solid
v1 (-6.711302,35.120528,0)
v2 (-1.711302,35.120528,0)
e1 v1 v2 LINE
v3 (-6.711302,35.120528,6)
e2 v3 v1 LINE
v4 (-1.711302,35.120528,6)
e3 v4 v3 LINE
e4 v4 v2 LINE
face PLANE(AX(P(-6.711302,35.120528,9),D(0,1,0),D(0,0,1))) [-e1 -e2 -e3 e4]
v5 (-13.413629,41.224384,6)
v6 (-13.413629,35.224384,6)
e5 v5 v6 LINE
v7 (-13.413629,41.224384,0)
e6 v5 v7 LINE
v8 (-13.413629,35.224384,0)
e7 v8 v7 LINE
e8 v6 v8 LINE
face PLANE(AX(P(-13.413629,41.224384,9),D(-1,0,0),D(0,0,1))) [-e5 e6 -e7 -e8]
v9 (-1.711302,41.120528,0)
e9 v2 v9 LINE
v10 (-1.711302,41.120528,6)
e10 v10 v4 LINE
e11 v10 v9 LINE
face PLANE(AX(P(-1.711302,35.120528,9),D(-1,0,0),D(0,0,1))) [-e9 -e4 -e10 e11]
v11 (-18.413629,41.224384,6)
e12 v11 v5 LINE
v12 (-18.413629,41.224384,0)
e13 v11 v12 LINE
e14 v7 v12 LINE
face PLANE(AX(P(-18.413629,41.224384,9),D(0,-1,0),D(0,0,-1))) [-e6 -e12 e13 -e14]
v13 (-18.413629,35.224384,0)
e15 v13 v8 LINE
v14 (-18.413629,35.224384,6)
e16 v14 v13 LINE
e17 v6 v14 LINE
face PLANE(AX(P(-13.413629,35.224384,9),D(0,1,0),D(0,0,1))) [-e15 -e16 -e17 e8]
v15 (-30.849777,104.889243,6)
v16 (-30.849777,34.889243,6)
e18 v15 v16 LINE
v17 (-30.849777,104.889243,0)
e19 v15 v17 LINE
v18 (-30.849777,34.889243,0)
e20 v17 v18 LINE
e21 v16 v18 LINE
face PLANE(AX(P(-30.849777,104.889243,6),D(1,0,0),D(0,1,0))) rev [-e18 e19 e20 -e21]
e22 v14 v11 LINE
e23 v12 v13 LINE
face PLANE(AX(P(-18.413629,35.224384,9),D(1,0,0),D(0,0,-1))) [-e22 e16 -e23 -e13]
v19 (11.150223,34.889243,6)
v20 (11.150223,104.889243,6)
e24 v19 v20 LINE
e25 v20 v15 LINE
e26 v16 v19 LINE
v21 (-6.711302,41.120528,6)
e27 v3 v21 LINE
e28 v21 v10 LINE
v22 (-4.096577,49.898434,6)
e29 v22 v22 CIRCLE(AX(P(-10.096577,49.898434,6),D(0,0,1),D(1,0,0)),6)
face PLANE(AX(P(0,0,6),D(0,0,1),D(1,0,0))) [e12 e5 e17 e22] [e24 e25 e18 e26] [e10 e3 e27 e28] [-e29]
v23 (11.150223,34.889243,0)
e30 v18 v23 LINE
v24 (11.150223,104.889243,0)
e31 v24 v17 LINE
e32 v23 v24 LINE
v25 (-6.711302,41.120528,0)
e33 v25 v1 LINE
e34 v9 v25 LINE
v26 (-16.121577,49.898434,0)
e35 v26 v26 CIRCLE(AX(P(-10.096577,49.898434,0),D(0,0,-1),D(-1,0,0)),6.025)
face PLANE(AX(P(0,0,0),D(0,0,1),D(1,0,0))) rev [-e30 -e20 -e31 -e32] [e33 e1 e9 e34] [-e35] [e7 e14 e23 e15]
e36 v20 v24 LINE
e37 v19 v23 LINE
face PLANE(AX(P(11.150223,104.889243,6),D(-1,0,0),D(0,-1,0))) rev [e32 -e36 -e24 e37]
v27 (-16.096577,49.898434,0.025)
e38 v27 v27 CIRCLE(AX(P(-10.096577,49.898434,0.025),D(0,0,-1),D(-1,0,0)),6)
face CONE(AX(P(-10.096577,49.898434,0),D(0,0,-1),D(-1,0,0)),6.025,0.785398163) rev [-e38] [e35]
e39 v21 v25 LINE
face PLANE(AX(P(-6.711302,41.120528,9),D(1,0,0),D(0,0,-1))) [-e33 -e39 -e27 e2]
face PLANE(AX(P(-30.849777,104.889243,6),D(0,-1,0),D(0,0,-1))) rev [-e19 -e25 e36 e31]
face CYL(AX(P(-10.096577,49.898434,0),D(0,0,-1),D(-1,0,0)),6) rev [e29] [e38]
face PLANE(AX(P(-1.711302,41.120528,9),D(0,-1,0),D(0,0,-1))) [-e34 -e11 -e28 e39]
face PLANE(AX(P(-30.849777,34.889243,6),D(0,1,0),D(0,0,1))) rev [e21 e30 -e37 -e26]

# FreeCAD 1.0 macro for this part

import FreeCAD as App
import Part
import Sketcher
from FreeCAD import Vector
Q = App.Units.Quantity

doc = App.newDocument("Part")
body = doc.addObject("PartDesign::Body", "Body")

# Sketch on XY plane
sketch1 = body.newObject("Sketcher::SketchObject", "Sketch")
sketch1.AttachmentSupport = (doc.getObject("XY_Plane"), [""])
sketch1.MapMode = "FlatFace"
sketch1.addGeometry([
    Part.LineSegment(Vector(-31, 105, 0), Vector(-31, 35, 0)),
    Part.LineSegment(Vector(-31, 35, 0), Vector(11, 35, 0)),
    Part.LineSegment(Vector(11, 35, 0), Vector(11, 105, 0)),
    Part.LineSegment(Vector(11, 105, 0), Vector(-31, 105, 0)),
], False)
sketch1.addConstraint([
    Sketcher.Constraint("Coincident", 0, 2, 1, 1),
    Sketcher.Constraint("Coincident", 1, 2, 2, 1),
    Sketcher.Constraint("Coincident", 2, 2, 3, 1),
    Sketcher.Constraint("Coincident", 3, 2, 0, 1),
    Sketcher.Constraint("Vertical", 0),
    Sketcher.Constraint("Horizontal", 1),
    Sketcher.Constraint("Vertical", 2),
    Sketcher.Constraint("Horizontal", 3),
    Sketcher.Constraint("DistanceX", 1, 1, 1, 2, Q("42 mm")),
    Sketcher.Constraint("DistanceY", 0, 2, 0, 1, Q("70 mm")),
    Sketcher.Constraint("DistanceX", 0, 2, -1, 1, Q("30.849777 mm")),
    Sketcher.Constraint("DistanceY", -1, 1, 0, 2, Q("34.889243 mm")),
])
pad1 = body.newObject("PartDesign::Pad", "Pad")
pad1.Profile = sketch1
pad1.Length = 6

# Sketch on XY plane
sketch2 = body.newObject("Sketcher::SketchObject", "Sketch001")
sketch2.AttachmentSupport = (doc.getObject("XY_Plane"), [""])
sketch2.MapMode = "FlatFace"
sketch2.addGeometry([
    Part.LineSegment(Vector(-7, 41, 0), Vector(-7, 35, 0)),  # 0
    Part.LineSegment(Vector(-7, 35, 0), Vector(-2, 35, 0)),  # 1
    Part.LineSegment(Vector(-2, 35, 0), Vector(-2, 41, 0)),  # 2
    Part.LineSegment(Vector(-2, 41, 0), Vector(-7, 41, 0)),  # 3
    Part.LineSegment(Vector(-18, 41, 0), Vector(-18, 35, 0)),  # 4
    Part.LineSegment(Vector(-18, 35, 0), Vector(-13, 35, 0)),  # 5
    Part.LineSegment(Vector(-13, 35, 0), Vector(-13, 41, 0)),  # 6
    Part.LineSegment(Vector(-13, 41, 0), Vector(-18, 41, 0)),  # 7
], False)
sketch2.addConstraint([
    Sketcher.Constraint("Coincident", 0, 2, 1, 1),
    Sketcher.Constraint("Coincident", 1, 2, 2, 1),
    Sketcher.Constraint("Coincident", 2, 2, 3, 1),
    Sketcher.Constraint("Coincident", 3, 2, 0, 1),
    Sketcher.Constraint("Coincident", 4, 2, 5, 1),
    Sketcher.Constraint("Coincident", 5, 2, 6, 1),
    Sketcher.Constraint("Coincident", 6, 2, 7, 1),
    Sketcher.Constraint("Coincident", 7, 2, 4, 1),
    Sketcher.Constraint("Vertical", 0),
    Sketcher.Constraint("Horizontal", 1),
    Sketcher.Constraint("Vertical", 2),
    Sketcher.Constraint("Horizontal", 3),
    Sketcher.Constraint("Vertical", 4),
    Sketcher.Constraint("Horizontal", 5),
    Sketcher.Constraint("Vertical", 6),
    Sketcher.Constraint("Horizontal", 7),
    Sketcher.Constraint("Equal", 3, 5),
    Sketcher.Constraint("Equal", 2, 4),
    Sketcher.Constraint("DistanceX", 1, 1, 1, 2, Q("5 mm")),
    Sketcher.Constraint("DistanceY", 0, 2, 0, 1, Q("6 mm")),
    Sketcher.Constraint("DistanceX", 0, 2, -1, 1, Q("6.711302 mm")),
    Sketcher.Constraint("DistanceX", 4, 2, -1, 1, Q("18.413629 mm")),
    Sketcher.Constraint("DistanceY", -1, 1, 0, 2, Q("35.120528 mm")),
    Sketcher.Constraint("DistanceY", -1, 1, 4, 2, Q("35.224384 mm")),
])
pocket1 = body.newObject("PartDesign::Pocket", "Pocket")
pocket1.Profile = sketch2
pocket1.Length = 9
pocket1.Reversed = True

# Sketch on XY plane
sketch3 = body.newObject("Sketcher::SketchObject", "Sketch002")
sketch3.AttachmentSupport = (doc.getObject("XY_Plane"), [""])
sketch3.MapMode = "FlatFace"
sketch3.addGeometry(Part.Circle(Vector(-10, 50, 0), Vector(0, 0, 1), 6), False)
sketch3.addConstraint([
    Sketcher.Constraint("Diameter", 0, Q("12 mm")),
    Sketcher.Constraint("DistanceX", 0, 3, -1, 1, Q("10.096577 mm")),
    Sketcher.Constraint("DistanceY", -1, 1, 0, 3, Q("49.898434 mm")),
])
doc.recompute()
hole = body.newObject("PartDesign::Hole", "Hole")
hole.Profile = sketch3
hole.ThreadType = "None"
hole.Diameter = 12
hole.DepthType = "Dimension"
hole.Depth = 50
hole.DrillPoint = "Angled"
hole.DrillPointAngle = 118
hole.HoleCutType = "Countersink"
hole.HoleCutDiameter = 12.05
hole.HoleCutCountersinkAngle = 90
hole.Reversed = True

doc.recompute()
